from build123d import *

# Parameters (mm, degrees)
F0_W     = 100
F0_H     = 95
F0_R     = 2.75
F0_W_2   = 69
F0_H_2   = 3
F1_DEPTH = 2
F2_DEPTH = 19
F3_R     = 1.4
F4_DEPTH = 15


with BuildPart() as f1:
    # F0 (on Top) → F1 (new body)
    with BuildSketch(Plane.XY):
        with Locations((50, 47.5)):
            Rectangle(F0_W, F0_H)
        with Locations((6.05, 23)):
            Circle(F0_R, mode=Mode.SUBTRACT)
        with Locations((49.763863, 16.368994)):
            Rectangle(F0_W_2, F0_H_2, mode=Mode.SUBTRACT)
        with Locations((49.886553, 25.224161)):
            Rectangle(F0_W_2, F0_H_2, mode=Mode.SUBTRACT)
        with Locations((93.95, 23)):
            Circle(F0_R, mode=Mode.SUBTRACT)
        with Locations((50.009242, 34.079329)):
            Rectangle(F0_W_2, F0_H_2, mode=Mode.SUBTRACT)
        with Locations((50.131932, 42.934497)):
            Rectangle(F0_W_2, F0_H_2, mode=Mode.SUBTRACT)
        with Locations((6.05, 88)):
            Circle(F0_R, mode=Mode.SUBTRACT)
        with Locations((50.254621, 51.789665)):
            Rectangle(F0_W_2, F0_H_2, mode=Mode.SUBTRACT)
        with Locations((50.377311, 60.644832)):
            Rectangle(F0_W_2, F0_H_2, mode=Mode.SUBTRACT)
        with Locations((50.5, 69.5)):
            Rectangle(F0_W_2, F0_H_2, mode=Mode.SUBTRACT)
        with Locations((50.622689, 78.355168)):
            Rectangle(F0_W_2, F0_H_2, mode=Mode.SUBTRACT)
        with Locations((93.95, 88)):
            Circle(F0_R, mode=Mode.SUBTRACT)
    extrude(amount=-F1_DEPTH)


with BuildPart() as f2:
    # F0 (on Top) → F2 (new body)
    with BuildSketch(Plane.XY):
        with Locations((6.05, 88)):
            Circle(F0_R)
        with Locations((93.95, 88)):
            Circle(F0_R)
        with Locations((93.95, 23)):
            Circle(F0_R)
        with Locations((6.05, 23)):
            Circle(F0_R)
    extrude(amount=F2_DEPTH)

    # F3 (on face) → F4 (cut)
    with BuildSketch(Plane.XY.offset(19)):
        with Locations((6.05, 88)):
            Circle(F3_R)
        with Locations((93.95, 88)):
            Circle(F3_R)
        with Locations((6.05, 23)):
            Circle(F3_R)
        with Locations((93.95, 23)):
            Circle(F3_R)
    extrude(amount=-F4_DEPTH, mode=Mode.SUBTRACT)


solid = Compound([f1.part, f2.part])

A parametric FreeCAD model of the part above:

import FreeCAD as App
import Part
import Sketcher

V = App.Vector
Q = App.Units.Quantity


def add_polygon(sketch, points):
    """Adds a closed chain of lines whose ends are joined by coincident constraints."""
    first, n = sketch.GeometryCount, len(points)
    for a, b in zip(points, points[1:] + points[:1]):
        sketch.addGeometry(Part.LineSegment(App.Vector(*a, 0), App.Vector(*b, 0)), False)
    for i in range(n):
        sketch.addConstraint(Sketcher.Constraint("Coincident", first + i, 2, first + (i + 1) % n, 1))

doc = App.newDocument("Part")
body = doc.addObject("PartDesign::Body", "Body")

sketch1 = body.newObject("Sketcher::SketchObject", "Sketch")
sketch1.AttachmentSupport = (doc.getObject("XY_Plane"), [""])
sketch1.MapMode = "FlatFace"
add_polygon(sketch1, [(0, 95), (0, 0), (100, 0), (100, 95)])
sketch1.addGeometry(Part.Circle(V(6.05, 23, 0), V(0, 0, 1), 2.75), False)
add_polygon(sketch1, [(84.263863, 14.868994), (15.263863, 14.868994), (15.263863, 17.868994), (84.263863, 17.868994)])
add_polygon(sketch1, [(84.386553, 23.724161), (15.386553, 23.724161), (15.386553, 26.724161), (84.386553, 26.724161)])
sketch1.addGeometry(Part.Circle(V(93.95, 23, 0), V(0, 0, 1), 2.75), False)
add_polygon(sketch1, [(84.509242, 32.579329), (15.509242, 32.579329), (15.509242, 35.579329), (84.509242, 35.579329)])
add_polygon(sketch1, [(84.631932, 41.434497), (15.631932, 41.434497), (15.631932, 44.434497), (84.631932, 44.434497)])
add_polygon(sketch1, [(84.754621, 50.289665), (15.754621, 50.289665), (15.754621, 53.289665), (84.754621, 53.289665)])
sketch1.addGeometry(Part.Circle(V(6.05, 88, 0), V(0, 0, 1), 2.75), False)
add_polygon(sketch1, [(84.877311, 59.144832), (15.877311, 59.144832), (15.877311, 62.144832), (84.877311, 62.144832)])
add_polygon(sketch1, [(85, 68), (16, 68), (16, 71), (85, 71)])
add_polygon(sketch1, [(85.122689, 76.855168), (16.122689, 76.855168), (16.122689, 79.855168), (85.122689, 79.855168)])
sketch1.addGeometry(Part.Circle(V(93.95, 88, 0), V(0, 0, 1), 2.75), False)
sketch1.addConstraint([
    Sketcher.Constraint("Vertical", 0),
    Sketcher.Constraint("Horizontal", 1),
    Sketcher.Constraint("Vertical", 2),
    Sketcher.Constraint("Horizontal", 3),
    Sketcher.Constraint("Horizontal", 5),
    Sketcher.Constraint("Vertical", 6),
    Sketcher.Constraint("Horizontal", 7),
    Sketcher.Constraint("Vertical", 8),
    Sketcher.Constraint("Horizontal", 9),
    Sketcher.Constraint("Vertical", 10),
    Sketcher.Constraint("Horizontal", 11),
    Sketcher.Constraint("Vertical", 12),
    Sketcher.Constraint("Horizontal", 14),
    Sketcher.Constraint("Vertical", 15),
    Sketcher.Constraint("Horizontal", 16),
    Sketcher.Constraint("Vertical", 17),
    Sketcher.Constraint("Horizontal", 18),
    Sketcher.Constraint("Vertical", 19),
    Sketcher.Constraint("Horizontal", 20),
    Sketcher.Constraint("Vertical", 21),
    Sketcher.Constraint("Horizontal", 22),
    Sketcher.Constraint("Vertical", 23),
    Sketcher.Constraint("Horizontal", 24),
    Sketcher.Constraint("Vertical", 25),
    Sketcher.Constraint("Horizontal", 27),
    Sketcher.Constraint("Vertical", 28),
    Sketcher.Constraint("Horizontal", 29),
    Sketcher.Constraint("Vertical", 30),
    Sketcher.Constraint("Horizontal", 31),
    Sketcher.Constraint("Vertical", 32),
    Sketcher.Constraint("Horizontal", 33),
    Sketcher.Constraint("Vertical", 34),
    Sketcher.Constraint("Horizontal", 35),
    Sketcher.Constraint("Vertical", 36),
    Sketcher.Constraint("Horizontal", 37),
    Sketcher.Constraint("Vertical", 38),
    Sketcher.Constraint("Coincident", 0, 2, -1, 1),
    Sketcher.Constraint("Equal", 4, 13),
    Sketcher.Constraint("Equal", 13, 26),
    Sketcher.Constraint("Equal", 26, 39),
    Sketcher.Constraint("Horizontal", 4, 3, 13, 3),
    Sketcher.Constraint("Horizontal", 26, 3, 39, 3),
    Sketcher.Constraint("Vertical", 4, 3, 26, 3),
    Sketcher.Constraint("Vertical", 13, 3, 39, 3),
    Sketcher.Constraint("Equal", 7, 9),
    Sketcher.Constraint("Equal", 11, 14),
    Sketcher.Constraint("Equal", 16, 18),
    Sketcher.Constraint("Equal", 20, 22),
    Sketcher.Constraint("Equal", 24, 27),
    Sketcher.Constraint("Equal", 29, 31),
    Sketcher.Constraint("Equal", 33, 35),
    Sketcher.Constraint("Equal", 8, 10),
    Sketcher.Constraint("Equal", 12, 15),
    Sketcher.Constraint("Equal", 17, 19),
    Sketcher.Constraint("Equal", 21, 23),
    Sketcher.Constraint("Equal", 25, 28),
    Sketcher.Constraint("Equal", 30, 32),
    Sketcher.Constraint("Equal", 34, 36),
    Sketcher.Constraint("Diameter", 4, Q("5.5 mm")),
    Sketcher.Constraint("DistanceX", 1, 1, 1, 2, Q("100 mm")),
    Sketcher.Constraint("DistanceX", 5, 2, 5, 1, Q("69 mm")),
    Sketcher.Constraint("DistanceY", 0, 2, 0, 1, Q("95 mm")),
    Sketcher.Constraint("DistanceY", 6, 1, 6, 2, Q("3 mm")),
    Sketcher.Constraint("DistanceY", -1, 1, 4, 3, Q("23 mm")),
    Sketcher.Constraint("DistanceY", -1, 1, 26, 3, Q("88 mm")),
    Sketcher.Constraint("DistanceX", -1, 1, 31, 2, Q("16 mm")),
    Sketcher.Constraint("DistanceY", -1, 1, 31, 2, Q("68 mm")),
    Sketcher.Constraint("DistanceX", 4, 3, 13, 3, Q("87.9 mm")),
    Sketcher.Constraint("DistanceX", -1, 1, 4, 3, Q("6.05 mm")),
    Sketcher.Constraint("DistanceY", -1, 1, 9, 2, Q("23.724161 mm")),
    Sketcher.Constraint("DistanceY", -1, 1, 14, 2, Q("32.579329 mm")),
    Sketcher.Constraint("DistanceX", -1, 1, 16, 2, Q("84.509242 mm")),
    Sketcher.Constraint("DistanceX", -1, 1, 22, 2, Q("15.754621 mm")),
    Sketcher.Constraint("DistanceX", -1, 1, 27, 2, Q("15.877311 mm")),
    Sketcher.Constraint("DistanceX", -1, 1, 35, 2, Q("16.122689 mm")),
    Sketcher.Constraint("DistanceY", -1, 1, 35, 2, Q("76.855168 mm")),
    Sketcher.Constraint("DistanceX", 6, 2, 9, 2, Q("0.12269 mm")),
    Sketcher.Constraint("DistanceX", 10, 2, 14, 2, Q("0.122689 mm")),
    Sketcher.Constraint("DistanceX", 15, 2, 18, 2, Q("0.12269 mm")),
    Sketcher.Constraint("DistanceY", -1, 1, 5, 2, Q("14.868994 mm")),
    Sketcher.Constraint("DistanceY", -1, 1, 18, 2, Q("41.434497 mm")),
    Sketcher.Constraint("DistanceY", -1, 1, 22, 2, Q("50.289665 mm")),
    Sketcher.Constraint("DistanceY", -1, 1, 27, 2, Q("59.144832 mm")),
])
pad1 = body.newObject("PartDesign::Pad", "Pad")
pad1.Profile = sketch1
pad1.Length = 2
pad1.Reversed = True
body2 = doc.addObject("PartDesign::Body", "Body001")
body2.AllowCompound = True

sketch2 = body2.newObject("Sketcher::SketchObject", "Sketch001")
sketch2.AttachmentSupport = (doc.getObject("XY_Plane001"), [""])
sketch2.MapMode = "FlatFace"
sketch2.addGeometry([
    Part.Circle(V(6.05, 88, 0), V(0, 0, 1), 2.75),
    Part.Circle(V(93.95, 88, 0), V(0, 0, 1), 2.75),
    Part.Circle(V(93.95, 23, 0), V(0, 0, 1), 2.75),
    Part.Circle(V(6.05, 23, 0), V(0, 0, 1), 2.75),
], False)
sketch2.addConstraint([
    Sketcher.Constraint("Equal", 0, 1),
    Sketcher.Constraint("Equal", 1, 2),
    Sketcher.Constraint("Equal", 2, 3),
    Sketcher.Constraint("Horizontal", 0, 3, 1, 3),
    Sketcher.Constraint("Horizontal", 2, 3, 3, 3),
    Sketcher.Constraint("Vertical", 1, 3, 2, 3),
    Sketcher.Constraint("Vertical", 0, 3, 3, 3),
    Sketcher.Constraint("Diameter", 0, Q("5.5 mm")),
    Sketcher.Constraint("DistanceY", -1, 1, 0, 3, Q("88 mm")),
    Sketcher.Constraint("DistanceY", -1, 1, 2, 3, Q("23 mm")),
    Sketcher.Constraint("DistanceX", 0, 3, 1, 3, Q("87.9 mm")),
    Sketcher.Constraint("DistanceX", -1, 1, 0, 3, Q("6.05 mm")),
])
pad2 = body2.newObject("PartDesign::Pad", "Pad001")
pad2.Profile = sketch2
pad2.Length = 19

sketch3 = body2.newObject("Sketcher::SketchObject", "Sketch002")
sketch3.AttachmentSupport = (doc.getObject("XY_Plane001"), [""])
sketch3.MapMode = "FlatFace"
sketch3.AttachmentOffset = App.Placement(V(0, 0, 19), App.Rotation())
sketch3.addGeometry([
    Part.Circle(V(6.05, 88, 0), V(0, 0, 1), 1.4),
    Part.Circle(V(93.95, 88, 0), V(0, 0, 1), 1.4),
    Part.Circle(V(6.05, 23, 0), V(0, 0, 1), 1.4),
    Part.Circle(V(93.95, 23, 0), V(0, 0, 1), 1.4),
], False)
sketch3.addConstraint([
    Sketcher.Constraint("Equal", 0, 1),
    Sketcher.Constraint("Equal", 1, 2),
    Sketcher.Constraint("Equal", 2, 3),
    Sketcher.Constraint("Horizontal", 0, 3, 1, 3),
    Sketcher.Constraint("Horizontal", 2, 3, 3, 3),
    Sketcher.Constraint("Vertical", 0, 3, 2, 3),
    Sketcher.Constraint("Vertical", 1, 3, 3, 3),
    Sketcher.Constraint("Diameter", 0, Q("2.8 mm")),
    Sketcher.Constraint("DistanceY", -1, 1, 0, 3, Q("88 mm")),
    Sketcher.Constraint("DistanceY", -1, 1, 2, 3, Q("23 mm")),
    Sketcher.Constraint("DistanceX", 0, 3, 1, 3, Q("87.9 mm")),
    Sketcher.Constraint("DistanceX", -1, 1, 0, 3, Q("6.05 mm")),
])
pocket1 = body2.newObject("PartDesign::Pocket", "Pocket")
pocket1.Profile = sketch3
pocket1.Length = 15

doc.recompute()
